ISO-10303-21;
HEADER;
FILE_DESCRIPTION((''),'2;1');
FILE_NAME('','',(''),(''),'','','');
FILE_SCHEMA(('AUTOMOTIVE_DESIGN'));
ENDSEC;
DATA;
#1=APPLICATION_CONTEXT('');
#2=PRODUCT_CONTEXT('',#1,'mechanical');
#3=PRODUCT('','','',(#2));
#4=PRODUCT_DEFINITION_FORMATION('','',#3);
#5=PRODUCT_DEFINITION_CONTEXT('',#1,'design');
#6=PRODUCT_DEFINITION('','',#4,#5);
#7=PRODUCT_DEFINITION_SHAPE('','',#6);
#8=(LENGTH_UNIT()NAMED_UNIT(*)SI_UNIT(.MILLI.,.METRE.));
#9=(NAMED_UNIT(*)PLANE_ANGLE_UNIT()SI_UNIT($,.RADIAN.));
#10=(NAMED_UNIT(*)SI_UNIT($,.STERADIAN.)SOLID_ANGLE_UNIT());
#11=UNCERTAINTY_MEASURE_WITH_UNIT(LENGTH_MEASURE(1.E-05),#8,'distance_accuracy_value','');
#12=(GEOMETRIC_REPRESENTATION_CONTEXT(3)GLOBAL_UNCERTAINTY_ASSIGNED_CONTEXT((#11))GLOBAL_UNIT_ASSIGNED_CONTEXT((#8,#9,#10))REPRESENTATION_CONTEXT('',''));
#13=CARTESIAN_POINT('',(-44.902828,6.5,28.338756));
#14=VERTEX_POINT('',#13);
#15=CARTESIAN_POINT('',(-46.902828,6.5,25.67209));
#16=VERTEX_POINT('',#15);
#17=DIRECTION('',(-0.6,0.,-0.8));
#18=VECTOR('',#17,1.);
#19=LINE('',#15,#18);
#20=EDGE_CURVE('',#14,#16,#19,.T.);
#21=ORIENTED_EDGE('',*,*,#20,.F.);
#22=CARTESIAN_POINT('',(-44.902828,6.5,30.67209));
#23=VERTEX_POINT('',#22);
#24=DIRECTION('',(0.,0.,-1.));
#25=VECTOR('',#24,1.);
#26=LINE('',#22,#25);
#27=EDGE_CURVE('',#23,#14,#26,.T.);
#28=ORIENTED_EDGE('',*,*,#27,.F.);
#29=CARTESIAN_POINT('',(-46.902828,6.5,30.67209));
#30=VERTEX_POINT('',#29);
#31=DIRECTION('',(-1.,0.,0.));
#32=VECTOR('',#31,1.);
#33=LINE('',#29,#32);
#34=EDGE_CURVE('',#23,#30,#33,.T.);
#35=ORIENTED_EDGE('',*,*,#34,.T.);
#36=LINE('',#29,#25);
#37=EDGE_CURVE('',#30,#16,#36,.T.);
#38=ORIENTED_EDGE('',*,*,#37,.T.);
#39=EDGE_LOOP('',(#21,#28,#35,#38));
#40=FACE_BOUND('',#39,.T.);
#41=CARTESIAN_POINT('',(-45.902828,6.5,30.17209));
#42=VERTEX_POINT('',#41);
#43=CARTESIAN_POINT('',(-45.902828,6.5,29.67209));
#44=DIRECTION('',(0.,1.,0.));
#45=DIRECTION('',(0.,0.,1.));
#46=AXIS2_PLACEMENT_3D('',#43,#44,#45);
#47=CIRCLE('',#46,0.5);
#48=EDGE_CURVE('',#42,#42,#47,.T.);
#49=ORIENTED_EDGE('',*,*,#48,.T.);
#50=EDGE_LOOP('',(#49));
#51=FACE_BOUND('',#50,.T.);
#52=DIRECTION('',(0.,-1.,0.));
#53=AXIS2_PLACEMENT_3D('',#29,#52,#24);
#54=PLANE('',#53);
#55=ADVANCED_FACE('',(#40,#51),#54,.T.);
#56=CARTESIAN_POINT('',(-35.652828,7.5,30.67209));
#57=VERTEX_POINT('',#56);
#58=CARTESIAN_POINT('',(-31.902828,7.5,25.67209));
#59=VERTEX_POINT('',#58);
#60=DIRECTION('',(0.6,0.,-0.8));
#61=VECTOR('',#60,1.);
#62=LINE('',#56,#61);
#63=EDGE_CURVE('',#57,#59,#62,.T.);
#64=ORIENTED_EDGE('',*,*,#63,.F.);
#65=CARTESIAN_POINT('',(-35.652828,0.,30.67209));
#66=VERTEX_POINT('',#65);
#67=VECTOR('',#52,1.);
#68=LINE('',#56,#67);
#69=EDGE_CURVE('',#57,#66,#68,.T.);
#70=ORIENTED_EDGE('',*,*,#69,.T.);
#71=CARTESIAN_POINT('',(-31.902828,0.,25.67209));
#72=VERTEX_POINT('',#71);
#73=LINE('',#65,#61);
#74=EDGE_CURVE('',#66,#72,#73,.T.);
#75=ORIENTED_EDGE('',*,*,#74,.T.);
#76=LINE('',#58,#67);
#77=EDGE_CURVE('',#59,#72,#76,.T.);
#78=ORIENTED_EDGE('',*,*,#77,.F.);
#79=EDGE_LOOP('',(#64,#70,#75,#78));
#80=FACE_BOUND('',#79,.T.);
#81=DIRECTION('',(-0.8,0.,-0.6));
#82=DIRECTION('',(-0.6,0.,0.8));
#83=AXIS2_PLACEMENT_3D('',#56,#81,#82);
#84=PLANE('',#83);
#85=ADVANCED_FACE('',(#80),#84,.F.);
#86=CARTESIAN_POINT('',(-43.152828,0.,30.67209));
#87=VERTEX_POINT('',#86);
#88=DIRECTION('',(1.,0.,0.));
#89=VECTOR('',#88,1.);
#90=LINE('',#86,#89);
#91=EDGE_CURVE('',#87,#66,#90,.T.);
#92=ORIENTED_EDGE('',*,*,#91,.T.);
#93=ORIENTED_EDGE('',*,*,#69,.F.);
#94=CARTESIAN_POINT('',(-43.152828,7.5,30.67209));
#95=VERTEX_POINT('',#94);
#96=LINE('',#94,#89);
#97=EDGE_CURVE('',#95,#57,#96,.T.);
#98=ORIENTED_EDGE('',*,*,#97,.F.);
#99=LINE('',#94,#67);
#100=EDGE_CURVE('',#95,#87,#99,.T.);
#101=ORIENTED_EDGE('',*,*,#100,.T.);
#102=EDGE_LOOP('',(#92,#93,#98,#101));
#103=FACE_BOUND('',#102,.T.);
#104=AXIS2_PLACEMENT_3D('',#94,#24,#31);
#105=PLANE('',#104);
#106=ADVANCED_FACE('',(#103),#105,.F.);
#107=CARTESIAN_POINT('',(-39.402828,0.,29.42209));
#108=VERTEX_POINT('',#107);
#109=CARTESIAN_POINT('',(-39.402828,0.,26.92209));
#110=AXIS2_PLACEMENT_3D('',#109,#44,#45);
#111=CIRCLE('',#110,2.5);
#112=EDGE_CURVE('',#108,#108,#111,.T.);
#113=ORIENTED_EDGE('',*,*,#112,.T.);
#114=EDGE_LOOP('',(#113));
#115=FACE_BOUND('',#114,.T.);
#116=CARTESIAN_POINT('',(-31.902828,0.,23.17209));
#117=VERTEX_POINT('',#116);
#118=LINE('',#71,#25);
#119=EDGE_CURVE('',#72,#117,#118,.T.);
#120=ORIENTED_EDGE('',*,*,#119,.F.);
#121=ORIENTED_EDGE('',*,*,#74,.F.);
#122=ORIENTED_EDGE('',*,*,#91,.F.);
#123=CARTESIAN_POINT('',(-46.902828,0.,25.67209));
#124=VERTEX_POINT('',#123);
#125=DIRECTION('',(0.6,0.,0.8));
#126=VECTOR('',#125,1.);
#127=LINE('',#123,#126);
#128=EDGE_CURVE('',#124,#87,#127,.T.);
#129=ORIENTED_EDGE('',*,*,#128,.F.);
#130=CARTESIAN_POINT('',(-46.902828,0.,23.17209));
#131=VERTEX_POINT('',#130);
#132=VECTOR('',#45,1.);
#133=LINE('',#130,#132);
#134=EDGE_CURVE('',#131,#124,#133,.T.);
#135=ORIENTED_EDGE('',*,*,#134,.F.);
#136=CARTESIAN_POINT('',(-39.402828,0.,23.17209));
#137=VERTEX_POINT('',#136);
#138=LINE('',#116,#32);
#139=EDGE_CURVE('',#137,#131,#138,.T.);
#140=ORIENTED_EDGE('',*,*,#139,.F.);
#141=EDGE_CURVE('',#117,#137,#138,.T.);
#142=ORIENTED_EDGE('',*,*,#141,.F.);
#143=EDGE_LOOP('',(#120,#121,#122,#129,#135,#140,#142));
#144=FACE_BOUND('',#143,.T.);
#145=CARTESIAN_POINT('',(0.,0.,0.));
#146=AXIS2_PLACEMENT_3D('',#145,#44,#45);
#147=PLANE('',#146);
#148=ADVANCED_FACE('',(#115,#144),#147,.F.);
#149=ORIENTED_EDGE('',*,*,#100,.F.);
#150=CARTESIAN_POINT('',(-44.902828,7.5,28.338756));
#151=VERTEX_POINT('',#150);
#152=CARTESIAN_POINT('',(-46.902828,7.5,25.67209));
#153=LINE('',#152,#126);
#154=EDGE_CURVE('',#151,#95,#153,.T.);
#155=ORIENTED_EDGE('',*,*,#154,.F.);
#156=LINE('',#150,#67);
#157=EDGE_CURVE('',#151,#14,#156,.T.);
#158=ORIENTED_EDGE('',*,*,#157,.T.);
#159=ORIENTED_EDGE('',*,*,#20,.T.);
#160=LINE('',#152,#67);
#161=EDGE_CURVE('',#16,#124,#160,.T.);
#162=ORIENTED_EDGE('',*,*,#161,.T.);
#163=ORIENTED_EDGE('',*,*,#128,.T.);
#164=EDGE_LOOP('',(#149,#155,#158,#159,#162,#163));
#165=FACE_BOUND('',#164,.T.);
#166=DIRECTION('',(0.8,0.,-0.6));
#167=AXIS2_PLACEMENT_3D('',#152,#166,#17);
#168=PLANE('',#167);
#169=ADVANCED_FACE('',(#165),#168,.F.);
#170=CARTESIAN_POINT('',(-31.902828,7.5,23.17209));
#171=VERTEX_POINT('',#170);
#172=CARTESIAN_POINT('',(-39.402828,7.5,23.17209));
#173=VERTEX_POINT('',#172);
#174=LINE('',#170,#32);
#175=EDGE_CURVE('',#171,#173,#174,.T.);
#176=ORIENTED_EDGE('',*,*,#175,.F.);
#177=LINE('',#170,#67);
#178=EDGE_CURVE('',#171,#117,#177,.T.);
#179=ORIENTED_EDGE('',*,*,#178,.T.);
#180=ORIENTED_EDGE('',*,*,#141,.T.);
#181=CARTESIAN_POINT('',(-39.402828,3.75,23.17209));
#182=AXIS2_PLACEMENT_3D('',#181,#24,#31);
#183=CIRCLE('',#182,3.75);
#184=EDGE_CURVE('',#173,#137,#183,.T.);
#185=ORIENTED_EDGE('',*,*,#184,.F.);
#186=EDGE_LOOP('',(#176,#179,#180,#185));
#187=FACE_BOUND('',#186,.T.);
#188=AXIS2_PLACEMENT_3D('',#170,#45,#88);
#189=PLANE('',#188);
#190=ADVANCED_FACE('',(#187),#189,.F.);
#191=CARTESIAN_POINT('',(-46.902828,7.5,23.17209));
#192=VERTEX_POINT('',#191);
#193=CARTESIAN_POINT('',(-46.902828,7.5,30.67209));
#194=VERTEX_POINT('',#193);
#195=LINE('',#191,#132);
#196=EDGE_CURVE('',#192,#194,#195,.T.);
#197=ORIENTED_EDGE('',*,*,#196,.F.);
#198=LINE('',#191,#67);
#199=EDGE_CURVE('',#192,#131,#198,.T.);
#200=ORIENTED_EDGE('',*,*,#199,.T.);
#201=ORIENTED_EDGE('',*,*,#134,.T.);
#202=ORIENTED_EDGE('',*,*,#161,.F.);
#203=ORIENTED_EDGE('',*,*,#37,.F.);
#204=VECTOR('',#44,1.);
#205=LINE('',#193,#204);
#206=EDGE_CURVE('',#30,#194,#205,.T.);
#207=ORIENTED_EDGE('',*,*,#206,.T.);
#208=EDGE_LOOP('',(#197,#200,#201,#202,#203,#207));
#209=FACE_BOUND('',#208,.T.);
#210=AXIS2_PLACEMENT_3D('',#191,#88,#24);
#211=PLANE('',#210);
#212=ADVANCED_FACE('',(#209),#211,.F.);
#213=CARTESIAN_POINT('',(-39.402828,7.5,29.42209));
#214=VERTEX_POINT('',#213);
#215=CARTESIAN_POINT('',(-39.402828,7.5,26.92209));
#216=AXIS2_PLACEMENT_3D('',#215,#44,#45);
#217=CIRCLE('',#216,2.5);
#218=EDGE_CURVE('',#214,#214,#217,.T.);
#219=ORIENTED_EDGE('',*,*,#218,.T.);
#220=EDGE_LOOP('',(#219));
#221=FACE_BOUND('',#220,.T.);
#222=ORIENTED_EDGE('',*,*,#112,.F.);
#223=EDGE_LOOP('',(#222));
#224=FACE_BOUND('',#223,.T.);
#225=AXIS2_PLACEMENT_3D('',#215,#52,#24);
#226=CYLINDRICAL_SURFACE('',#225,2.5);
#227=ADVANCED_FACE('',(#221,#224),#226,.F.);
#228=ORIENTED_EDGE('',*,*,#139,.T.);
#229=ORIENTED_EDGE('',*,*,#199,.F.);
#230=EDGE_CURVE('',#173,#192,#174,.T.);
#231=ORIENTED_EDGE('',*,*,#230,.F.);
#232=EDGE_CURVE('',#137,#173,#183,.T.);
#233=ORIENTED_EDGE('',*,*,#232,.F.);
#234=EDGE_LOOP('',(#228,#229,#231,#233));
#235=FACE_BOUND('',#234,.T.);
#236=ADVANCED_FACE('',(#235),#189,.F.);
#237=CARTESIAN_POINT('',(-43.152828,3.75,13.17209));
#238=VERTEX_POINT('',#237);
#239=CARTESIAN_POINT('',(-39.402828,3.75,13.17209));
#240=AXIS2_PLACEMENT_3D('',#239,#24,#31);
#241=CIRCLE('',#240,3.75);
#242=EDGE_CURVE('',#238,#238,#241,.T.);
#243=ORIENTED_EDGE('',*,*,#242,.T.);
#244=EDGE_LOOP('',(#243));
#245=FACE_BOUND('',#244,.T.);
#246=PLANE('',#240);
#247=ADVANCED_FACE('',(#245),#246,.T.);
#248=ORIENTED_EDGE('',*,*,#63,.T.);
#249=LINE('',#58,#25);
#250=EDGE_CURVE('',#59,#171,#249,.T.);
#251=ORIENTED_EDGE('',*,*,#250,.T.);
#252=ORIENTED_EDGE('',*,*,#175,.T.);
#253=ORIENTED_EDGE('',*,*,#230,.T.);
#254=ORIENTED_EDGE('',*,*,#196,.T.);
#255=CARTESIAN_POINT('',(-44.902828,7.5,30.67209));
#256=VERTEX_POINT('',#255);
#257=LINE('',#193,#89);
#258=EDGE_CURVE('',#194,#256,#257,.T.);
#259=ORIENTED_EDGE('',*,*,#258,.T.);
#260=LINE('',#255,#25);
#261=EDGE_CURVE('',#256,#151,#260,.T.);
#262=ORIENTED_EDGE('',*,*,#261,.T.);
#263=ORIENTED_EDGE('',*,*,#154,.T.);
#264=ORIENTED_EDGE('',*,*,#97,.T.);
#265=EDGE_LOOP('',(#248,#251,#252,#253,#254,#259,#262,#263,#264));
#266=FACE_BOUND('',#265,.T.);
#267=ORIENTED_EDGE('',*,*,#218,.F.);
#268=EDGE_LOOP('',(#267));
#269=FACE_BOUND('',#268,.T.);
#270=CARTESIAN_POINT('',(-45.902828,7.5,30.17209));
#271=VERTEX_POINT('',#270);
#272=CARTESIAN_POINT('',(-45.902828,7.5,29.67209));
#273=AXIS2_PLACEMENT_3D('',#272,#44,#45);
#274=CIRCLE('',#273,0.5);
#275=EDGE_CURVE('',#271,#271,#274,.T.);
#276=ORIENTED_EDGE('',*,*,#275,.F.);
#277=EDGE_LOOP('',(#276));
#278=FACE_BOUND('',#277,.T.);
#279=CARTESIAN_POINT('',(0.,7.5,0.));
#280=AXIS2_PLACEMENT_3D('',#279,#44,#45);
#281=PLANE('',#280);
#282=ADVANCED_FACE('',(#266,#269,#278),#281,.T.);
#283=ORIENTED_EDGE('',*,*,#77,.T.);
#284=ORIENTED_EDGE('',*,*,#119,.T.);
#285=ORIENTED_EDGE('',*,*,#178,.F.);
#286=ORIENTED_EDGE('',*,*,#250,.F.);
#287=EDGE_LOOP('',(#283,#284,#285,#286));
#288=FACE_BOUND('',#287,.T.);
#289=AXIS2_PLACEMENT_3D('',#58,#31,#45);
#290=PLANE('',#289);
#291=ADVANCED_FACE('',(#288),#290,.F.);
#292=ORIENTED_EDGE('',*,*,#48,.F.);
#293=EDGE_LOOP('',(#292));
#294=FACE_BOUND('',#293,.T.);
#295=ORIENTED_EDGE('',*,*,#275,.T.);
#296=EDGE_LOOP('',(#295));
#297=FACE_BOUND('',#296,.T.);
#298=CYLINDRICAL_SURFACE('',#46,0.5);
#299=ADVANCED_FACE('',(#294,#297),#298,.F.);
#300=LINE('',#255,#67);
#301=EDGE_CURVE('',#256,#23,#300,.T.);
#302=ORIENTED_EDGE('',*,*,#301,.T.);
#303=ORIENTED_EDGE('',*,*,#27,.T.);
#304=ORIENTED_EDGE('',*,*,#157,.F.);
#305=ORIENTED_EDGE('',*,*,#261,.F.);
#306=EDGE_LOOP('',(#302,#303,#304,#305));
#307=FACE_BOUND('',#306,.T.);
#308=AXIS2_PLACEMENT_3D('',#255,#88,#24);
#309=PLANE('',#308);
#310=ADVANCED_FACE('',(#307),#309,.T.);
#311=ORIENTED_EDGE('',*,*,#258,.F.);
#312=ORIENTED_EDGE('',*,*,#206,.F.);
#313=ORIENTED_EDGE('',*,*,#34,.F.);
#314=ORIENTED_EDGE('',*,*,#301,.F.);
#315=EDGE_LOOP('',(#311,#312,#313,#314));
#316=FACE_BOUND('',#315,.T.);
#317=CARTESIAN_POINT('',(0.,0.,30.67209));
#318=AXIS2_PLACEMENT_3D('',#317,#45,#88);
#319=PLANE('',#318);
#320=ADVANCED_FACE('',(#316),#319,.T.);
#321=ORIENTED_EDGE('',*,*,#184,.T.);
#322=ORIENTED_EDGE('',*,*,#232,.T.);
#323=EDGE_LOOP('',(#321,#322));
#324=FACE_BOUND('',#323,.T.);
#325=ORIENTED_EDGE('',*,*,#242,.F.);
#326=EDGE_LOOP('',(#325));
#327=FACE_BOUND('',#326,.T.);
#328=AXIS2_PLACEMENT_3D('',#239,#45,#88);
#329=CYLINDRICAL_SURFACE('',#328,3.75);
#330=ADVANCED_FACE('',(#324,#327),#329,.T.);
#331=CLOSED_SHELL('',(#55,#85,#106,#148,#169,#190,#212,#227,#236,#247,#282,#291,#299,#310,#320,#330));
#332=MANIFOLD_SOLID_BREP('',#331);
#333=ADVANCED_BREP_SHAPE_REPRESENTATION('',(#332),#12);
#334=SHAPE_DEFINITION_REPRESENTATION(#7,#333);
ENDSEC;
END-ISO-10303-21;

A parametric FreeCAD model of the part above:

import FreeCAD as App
import Part
import Sketcher

V = App.Vector


def add_polygon(sketch, points):
    """Adds a closed chain of lines whose ends are joined by coincident constraints."""
    first, n = sketch.GeometryCount, len(points)
    for a, b in zip(points, points[1:] + points[:1]):
        sketch.addGeometry(Part.LineSegment(App.Vector(*a, 0), App.Vector(*b, 0)), False)
    for i in range(n):
        sketch.addConstraint(Sketcher.Constraint("Coincident", first + i, 2, first + (i + 1) % n, 1))

doc = App.newDocument("Part")
params = doc.addObject("Spreadsheet::Sheet", "Params")
for row, (alias, value) in enumerate([
    ("sketch1_diameter", "5 mm"),
    ("sketch1_width", "15 mm"),
    ("sketch1_width2", "7.5 mm"),
    ("sketch1_height", "2.5 mm"),
    ("pad1_length", "7.5 mm"),
    ("sketch2_diameter", "7.5 mm"),
    ("pad2_length", "10 mm"),
    ("sketch3_width", "2 mm"),
    ("sketch3_height", "1 mm"),
    ("pad3_length", "7.5 mm"),
    ("sketch4_diameter", "1 mm"),
    ("pocket1_length", "1 mm"),
], start=1):
    params.set(f"A{row}", alias)
    params.set(f"B{row}", "=" + value)
    params.setAlias(f"B{row}", alias)

body = doc.addObject("PartDesign::Body", "Body")

# Sketch on XZ plane
sketch1 = doc.addObject("Sketcher::SketchObject", "Sketch")
body.addObject(sketch1)
sketch1.AttachmentSupport = (doc.XZ_Plane, [""])
sketch1.MapMode = "FlatFace"
add_polygon(sketch1, [(-43.152828, 30.67209), (-35.652828, 30.67209), (-31.902828, 25.67209), (-31.902828, 23.17209), (-46.902828, 23.17209), (-46.902828, 25.67209)])  # lines 0-5
sketch1.addGeometry(Part.Circle(V(-39.402828, 26.92209, 0), V(0, 0, 1), 2.5), False)  # 6
sketch1.addConstraint([
    Sketcher.Constraint("Horizontal", 0),
    Sketcher.Constraint("Vertical", 2),
    Sketcher.Constraint("Horizontal", 3),
    Sketcher.Constraint("Vertical", 4),
    Sketcher.Constraint("Horizontal", 1, 2, 4, 2),
    Sketcher.Constraint("Equal", 1, 5),
    Sketcher.Constraint("Diameter", 6, 5.0),
    Sketcher.Constraint("DistanceX", 3, 2, 3, 1, 15.0),
    Sketcher.Constraint("DistanceX", 0, 1, 0, 2, 7.5),
    Sketcher.Constraint("DistanceY", 2, 2, 2, 1, 2.5),
    Sketcher.Constraint("DistanceY", 1, 2, 0, 2, 5.0),
    Sketcher.Constraint("DistanceX", 6, 3, 1, 2, 7.5),
    Sketcher.Constraint("DistanceY", 6, 3, 0, 2, 3.75),
    Sketcher.Constraint("DistanceY", -1, 1, 6, 3, 26.92209),
    Sketcher.Constraint("DistanceX", 6, 3, -1, 1, 39.402828),
])
sketch1.setExpression("Constraints[12]", "Params.sketch1_diameter")
sketch1.setExpression("Constraints[13]", "Params.sketch1_width")
sketch1.setExpression("Constraints[14]", "Params.sketch1_width2")
sketch1.setExpression("Constraints[15]", "Params.sketch1_height")
pad1 = doc.addObject("PartDesign::Pad", "Pad")
body.addObject(pad1)
pad1.Profile = sketch1
pad1.setExpression("Length", "Params.pad1_length")
pad1.Reversed = True

# Sketch on XY plane
sketch2 = doc.addObject("Sketcher::SketchObject", "Sketch001")
body.addObject(sketch2)
sketch2.AttachmentSupport = (doc.XY_Plane, [""])
sketch2.MapMode = "FlatFace"
sketch2.AttachmentOffset = App.Placement(V(0, 0, 23.17209), App.Rotation())
sketch2.addGeometry(Part.Circle(V(-39.402828, 3.75, 0), V(0, 0, 1), 3.75), False)
sketch2.addConstraint([
    Sketcher.Constraint("Diameter", 0, 7.5),
    Sketcher.Constraint("DistanceY", -1, 1, 0, 3, 3.75),
    Sketcher.Constraint("DistanceX", 0, 3, -1, 1, 39.402828),
])
sketch2.setExpression("Constraints[0]", "Params.sketch2_diameter")
pad2 = doc.addObject("PartDesign::Pad", "Pad001")
body.addObject(pad2)
pad2.Profile = sketch2
pad2.setExpression("Length", "Params.pad2_length")
pad2.Reversed = True

# Sketch on XY plane
sketch3 = doc.addObject("Sketcher::SketchObject", "Sketch002")
body.addObject(sketch3)
sketch3.AttachmentSupport = (doc.XY_Plane, [""])
sketch3.MapMode = "FlatFace"
sketch3.AttachmentOffset = App.Placement(V(0, 0, 23.17209), App.Rotation())
add_polygon(sketch3, [(-44.902828, 7.5), (-44.902828, 6.5), (-46.902828, 6.5), (-46.902828, 7.5)])  # lines 0-3
sketch3.addConstraint([
    Sketcher.Constraint("Vertical", 0),
    Sketcher.Constraint("Horizontal", 1),
    Sketcher.Constraint("Vertical", 2),
    Sketcher.Constraint("Horizontal", 3),
    Sketcher.Constraint("DistanceX", 1, 2, 1, 1, 2.0),
    Sketcher.Constraint("DistanceY", 0, 2, 0, 1, 1.0),
    Sketcher.Constraint("DistanceY", -1, 1, 0, 2, 6.5),
    Sketcher.Constraint("DistanceX", 0, 2, -1, 1, 44.902828),
])
sketch3.setExpression("Constraints[8]", "Params.sketch3_width")
sketch3.setExpression("Constraints[9]", "Params.sketch3_height")
pad3 = doc.addObject("PartDesign::Pad", "Pad002")
body.addObject(pad3)
pad3.Profile = sketch3
pad3.setExpression("Length", "Params.pad3_length")

# Sketch on XZ plane
sketch4 = doc.addObject("Sketcher::SketchObject", "Sketch003")
body.addObject(sketch4)
sketch4.AttachmentSupport = (doc.XZ_Plane, [""])
sketch4.MapMode = "FlatFace"
sketch4.AttachmentOffset = App.Placement(V(0, 0, -7.5), App.Rotation())
sketch4.addGeometry(Part.Circle(V(-45.902828, 29.67209, 0), V(0, 0, 1), 0.5), False)
sketch4.addConstraint([
    Sketcher.Constraint("Diameter", 0, 1.0),
    Sketcher.Constraint("DistanceY", -1, 1, 0, 3, 29.67209),
    Sketcher.Constraint("DistanceX", 0, 3, -1, 1, 45.902828),
])
sketch4.setExpression("Constraints[0]", "Params.sketch4_diameter")
pocket1 = doc.addObject("PartDesign::Pocket", "Pocket")
body.addObject(pocket1)
pocket1.Profile = sketch4
pocket1.setExpression("Length", "Params.pocket1_length")
pocket1.Reversed = True

doc.recompute()
